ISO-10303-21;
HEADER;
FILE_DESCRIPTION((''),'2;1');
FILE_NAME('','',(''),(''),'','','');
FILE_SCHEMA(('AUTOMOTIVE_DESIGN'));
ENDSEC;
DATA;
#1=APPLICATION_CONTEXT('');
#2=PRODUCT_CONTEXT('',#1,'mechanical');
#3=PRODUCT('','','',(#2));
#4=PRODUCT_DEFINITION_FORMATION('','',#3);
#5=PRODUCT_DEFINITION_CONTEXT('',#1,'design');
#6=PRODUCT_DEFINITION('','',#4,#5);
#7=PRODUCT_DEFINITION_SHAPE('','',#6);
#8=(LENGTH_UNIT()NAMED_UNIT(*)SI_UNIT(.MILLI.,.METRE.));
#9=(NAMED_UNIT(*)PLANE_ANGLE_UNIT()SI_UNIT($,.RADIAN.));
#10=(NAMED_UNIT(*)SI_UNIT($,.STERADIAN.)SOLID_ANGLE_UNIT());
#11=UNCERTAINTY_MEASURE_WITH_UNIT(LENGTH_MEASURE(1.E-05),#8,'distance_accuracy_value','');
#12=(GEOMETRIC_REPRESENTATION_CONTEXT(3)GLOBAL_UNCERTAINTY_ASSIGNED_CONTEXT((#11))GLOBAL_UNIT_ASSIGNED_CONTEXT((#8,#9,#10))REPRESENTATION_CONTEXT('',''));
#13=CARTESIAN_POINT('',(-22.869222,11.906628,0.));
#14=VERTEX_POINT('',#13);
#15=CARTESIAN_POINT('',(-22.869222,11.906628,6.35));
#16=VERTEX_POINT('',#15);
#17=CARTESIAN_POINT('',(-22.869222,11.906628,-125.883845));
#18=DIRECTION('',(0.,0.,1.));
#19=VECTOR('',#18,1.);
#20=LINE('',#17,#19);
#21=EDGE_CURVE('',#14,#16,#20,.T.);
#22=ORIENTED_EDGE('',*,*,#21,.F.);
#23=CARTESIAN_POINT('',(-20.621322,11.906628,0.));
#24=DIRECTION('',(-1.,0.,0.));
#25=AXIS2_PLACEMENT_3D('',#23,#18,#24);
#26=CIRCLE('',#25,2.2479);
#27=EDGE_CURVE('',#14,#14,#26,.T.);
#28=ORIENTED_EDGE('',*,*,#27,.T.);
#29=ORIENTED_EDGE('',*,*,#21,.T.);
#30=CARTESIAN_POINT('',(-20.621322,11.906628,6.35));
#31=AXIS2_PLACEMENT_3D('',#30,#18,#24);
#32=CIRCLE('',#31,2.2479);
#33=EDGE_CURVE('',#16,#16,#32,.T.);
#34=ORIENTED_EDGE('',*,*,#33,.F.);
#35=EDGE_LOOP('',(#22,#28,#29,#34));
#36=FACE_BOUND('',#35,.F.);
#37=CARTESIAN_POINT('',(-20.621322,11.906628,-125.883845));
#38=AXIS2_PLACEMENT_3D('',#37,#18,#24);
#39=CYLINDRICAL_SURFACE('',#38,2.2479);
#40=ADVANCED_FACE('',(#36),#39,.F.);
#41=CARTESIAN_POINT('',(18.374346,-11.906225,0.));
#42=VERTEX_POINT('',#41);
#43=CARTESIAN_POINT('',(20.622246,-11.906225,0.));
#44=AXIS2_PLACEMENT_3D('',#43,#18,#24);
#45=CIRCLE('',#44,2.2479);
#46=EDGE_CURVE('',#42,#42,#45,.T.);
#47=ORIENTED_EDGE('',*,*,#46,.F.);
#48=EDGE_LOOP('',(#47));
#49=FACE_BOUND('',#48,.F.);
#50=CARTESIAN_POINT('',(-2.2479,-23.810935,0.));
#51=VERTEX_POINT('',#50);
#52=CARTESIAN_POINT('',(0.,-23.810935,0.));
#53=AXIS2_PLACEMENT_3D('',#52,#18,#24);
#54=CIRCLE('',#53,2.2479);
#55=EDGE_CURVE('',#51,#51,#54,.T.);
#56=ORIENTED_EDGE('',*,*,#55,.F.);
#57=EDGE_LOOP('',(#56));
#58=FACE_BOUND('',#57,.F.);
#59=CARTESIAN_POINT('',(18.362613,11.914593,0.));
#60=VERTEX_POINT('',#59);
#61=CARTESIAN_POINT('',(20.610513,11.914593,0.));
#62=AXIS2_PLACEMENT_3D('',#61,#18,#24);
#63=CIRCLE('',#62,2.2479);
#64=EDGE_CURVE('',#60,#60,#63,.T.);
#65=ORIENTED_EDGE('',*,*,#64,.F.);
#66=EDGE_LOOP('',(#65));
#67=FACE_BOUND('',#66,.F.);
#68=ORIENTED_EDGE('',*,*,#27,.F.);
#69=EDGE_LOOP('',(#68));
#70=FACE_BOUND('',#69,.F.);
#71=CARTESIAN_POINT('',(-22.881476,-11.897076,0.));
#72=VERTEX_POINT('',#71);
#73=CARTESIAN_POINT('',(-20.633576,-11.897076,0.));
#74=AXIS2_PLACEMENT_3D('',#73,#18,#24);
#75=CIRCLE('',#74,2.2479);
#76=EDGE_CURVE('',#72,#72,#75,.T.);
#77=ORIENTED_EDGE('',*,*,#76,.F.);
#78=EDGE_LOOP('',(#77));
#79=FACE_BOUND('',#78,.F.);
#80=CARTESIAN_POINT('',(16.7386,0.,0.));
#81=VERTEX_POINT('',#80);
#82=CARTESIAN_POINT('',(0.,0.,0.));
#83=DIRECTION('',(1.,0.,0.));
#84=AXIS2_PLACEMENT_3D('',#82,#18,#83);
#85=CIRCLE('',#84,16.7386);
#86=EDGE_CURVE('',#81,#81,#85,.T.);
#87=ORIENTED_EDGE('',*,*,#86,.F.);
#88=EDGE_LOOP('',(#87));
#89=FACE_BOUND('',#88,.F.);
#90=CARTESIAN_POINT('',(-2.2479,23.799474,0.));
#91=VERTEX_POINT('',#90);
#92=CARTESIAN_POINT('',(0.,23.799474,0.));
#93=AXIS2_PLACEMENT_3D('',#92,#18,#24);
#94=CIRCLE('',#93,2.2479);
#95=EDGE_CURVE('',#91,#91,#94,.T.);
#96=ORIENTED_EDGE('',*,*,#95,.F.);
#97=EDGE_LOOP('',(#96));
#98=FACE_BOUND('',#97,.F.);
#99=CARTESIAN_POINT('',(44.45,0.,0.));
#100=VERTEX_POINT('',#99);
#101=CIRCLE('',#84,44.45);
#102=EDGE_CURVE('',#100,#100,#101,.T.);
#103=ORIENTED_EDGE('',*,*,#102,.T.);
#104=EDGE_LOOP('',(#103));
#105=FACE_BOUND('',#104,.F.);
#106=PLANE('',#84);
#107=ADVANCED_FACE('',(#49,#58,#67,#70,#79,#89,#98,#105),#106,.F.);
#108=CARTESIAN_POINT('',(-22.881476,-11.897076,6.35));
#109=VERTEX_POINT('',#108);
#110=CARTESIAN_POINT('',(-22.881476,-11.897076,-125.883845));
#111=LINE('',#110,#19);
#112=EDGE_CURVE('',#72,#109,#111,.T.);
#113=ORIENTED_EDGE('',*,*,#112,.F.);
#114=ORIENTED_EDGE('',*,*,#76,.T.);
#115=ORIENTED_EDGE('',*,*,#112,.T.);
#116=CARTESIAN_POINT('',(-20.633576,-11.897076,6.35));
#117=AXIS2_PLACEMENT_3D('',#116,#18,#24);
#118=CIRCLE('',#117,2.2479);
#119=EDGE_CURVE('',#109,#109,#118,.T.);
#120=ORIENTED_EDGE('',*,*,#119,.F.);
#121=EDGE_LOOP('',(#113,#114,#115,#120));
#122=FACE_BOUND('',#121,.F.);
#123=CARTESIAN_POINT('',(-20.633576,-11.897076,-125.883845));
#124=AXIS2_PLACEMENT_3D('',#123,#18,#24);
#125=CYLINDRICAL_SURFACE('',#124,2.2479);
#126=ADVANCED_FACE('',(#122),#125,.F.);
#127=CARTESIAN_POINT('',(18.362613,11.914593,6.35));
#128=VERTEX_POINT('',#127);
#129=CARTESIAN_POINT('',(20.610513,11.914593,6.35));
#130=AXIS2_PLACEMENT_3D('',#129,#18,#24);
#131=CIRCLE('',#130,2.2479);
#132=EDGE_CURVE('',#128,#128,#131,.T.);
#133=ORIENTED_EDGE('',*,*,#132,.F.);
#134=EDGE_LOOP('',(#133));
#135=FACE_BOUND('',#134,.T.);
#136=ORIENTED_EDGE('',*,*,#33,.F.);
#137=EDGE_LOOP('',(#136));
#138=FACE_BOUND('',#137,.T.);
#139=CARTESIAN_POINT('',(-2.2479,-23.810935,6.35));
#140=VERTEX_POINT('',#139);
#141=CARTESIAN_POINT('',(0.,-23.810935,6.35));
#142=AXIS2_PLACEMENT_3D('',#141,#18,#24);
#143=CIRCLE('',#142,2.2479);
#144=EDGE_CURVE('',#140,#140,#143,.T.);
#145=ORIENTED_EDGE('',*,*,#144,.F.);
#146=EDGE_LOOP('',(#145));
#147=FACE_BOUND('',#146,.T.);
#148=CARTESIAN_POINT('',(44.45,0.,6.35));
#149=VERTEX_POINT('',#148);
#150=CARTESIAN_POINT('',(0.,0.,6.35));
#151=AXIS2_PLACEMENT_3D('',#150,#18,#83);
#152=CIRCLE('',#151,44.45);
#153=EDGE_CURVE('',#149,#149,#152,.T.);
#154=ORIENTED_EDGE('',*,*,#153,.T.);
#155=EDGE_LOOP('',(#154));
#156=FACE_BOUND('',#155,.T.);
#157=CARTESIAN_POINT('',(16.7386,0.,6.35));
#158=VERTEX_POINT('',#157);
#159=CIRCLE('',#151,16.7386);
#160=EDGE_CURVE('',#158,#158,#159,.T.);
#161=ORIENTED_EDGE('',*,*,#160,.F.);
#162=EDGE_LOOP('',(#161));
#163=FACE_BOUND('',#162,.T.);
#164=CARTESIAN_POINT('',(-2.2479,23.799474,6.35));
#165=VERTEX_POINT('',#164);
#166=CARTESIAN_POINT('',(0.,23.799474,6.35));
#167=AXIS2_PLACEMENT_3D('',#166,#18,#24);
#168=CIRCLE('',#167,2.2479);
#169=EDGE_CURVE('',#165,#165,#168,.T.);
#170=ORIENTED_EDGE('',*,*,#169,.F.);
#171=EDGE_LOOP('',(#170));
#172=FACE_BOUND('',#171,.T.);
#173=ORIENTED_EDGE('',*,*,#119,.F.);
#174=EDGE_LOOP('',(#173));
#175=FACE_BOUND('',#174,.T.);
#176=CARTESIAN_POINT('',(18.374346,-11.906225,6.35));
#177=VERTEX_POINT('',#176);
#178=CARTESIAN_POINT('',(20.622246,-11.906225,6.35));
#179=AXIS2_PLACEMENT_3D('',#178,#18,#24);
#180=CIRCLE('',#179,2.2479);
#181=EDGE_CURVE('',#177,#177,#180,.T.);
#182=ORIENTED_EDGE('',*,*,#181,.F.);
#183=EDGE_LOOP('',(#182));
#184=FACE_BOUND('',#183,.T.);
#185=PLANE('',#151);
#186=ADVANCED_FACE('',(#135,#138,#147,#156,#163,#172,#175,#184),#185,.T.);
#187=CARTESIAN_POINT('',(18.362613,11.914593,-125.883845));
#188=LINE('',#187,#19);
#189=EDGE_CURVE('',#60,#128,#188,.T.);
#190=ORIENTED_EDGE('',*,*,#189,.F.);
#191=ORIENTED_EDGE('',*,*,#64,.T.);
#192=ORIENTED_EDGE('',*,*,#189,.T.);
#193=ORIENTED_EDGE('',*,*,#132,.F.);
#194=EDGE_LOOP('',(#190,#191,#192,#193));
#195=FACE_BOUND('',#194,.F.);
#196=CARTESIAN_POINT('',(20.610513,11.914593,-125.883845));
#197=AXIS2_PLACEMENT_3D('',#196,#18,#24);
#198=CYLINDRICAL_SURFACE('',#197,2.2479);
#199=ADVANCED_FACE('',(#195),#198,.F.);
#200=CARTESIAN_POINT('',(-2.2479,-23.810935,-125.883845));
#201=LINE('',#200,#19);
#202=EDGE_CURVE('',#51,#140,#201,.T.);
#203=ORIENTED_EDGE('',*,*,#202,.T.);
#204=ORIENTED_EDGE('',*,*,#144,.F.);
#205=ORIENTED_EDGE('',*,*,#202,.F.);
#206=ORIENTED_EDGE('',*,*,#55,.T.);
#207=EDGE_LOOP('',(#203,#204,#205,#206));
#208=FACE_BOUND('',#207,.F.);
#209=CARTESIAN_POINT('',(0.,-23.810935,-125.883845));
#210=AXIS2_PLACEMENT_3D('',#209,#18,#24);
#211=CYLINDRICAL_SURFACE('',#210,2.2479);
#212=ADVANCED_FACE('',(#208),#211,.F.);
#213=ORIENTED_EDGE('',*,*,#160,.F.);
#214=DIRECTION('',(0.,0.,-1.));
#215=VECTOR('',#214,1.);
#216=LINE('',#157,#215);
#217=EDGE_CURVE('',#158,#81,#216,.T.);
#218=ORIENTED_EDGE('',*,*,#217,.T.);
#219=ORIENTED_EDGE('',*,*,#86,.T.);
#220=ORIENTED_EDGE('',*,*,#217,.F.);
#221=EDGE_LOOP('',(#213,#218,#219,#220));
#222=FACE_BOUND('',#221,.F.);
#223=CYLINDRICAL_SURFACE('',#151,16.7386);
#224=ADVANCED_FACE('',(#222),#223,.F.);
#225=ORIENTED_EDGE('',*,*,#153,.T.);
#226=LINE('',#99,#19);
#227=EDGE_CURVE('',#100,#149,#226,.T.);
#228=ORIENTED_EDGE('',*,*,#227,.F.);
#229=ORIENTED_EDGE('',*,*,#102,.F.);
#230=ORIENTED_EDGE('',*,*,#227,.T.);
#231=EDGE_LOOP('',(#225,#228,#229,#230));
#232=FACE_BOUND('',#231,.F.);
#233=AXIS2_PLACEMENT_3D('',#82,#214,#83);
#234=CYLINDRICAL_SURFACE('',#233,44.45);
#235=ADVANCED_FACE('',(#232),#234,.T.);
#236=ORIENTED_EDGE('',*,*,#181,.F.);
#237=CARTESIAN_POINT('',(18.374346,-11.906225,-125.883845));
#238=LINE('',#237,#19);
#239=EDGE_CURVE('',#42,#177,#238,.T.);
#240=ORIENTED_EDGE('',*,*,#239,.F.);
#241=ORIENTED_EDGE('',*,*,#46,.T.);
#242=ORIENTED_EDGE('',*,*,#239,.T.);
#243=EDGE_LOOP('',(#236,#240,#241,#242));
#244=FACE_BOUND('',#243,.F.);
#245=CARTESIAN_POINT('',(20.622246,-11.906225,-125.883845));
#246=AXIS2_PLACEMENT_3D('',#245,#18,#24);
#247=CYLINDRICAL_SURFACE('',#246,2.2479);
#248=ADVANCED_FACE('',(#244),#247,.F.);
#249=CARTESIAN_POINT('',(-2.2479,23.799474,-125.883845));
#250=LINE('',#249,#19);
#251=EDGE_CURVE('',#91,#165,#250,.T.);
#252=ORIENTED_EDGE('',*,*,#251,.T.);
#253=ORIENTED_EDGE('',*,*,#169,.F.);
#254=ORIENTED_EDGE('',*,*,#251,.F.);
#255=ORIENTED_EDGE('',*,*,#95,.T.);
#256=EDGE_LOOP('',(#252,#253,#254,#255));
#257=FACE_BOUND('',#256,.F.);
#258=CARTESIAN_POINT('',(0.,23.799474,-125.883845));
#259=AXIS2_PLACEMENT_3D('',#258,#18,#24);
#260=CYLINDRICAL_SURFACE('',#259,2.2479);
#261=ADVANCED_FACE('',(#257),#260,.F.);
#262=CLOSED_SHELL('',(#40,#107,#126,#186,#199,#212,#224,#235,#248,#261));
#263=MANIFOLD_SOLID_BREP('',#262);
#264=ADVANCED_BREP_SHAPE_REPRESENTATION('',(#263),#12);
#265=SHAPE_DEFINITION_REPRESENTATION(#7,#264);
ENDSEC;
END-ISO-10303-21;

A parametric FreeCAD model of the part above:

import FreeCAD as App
import Part
import Sketcher
Q = App.Units.Quantity

doc = App.newDocument("Part")
body = doc.addObject("PartDesign::Body", "Body")

# Sketch on XY plane
sketch1 = doc.addObject("Sketcher::SketchObject", "Sketch")
body.addObject(sketch1)
sketch1.AttachmentSupport = (doc.XY_Plane, [""])
sketch1.MapMode = "FlatFace"
sketch1.addGeometry(Part.Circle(App.Vector(0, 0, 0), App.Vector(0, 0, 1), 44), False)
sketch1.addConstraint(Sketcher.Constraint("Coincident", 0, 3, -1, 1))
sketch1.addConstraint(Sketcher.Constraint("Diameter", 0, Q("3.5 in")))
pad1 = doc.addObject("PartDesign::Pad", "Pad")
body.addObject(pad1)
pad1.Profile = sketch1
pad1.Length = Q("0.25 in")

# Sketch on XY plane
sketch2 = doc.addObject("Sketcher::SketchObject", "Sketch001")
body.addObject(sketch2)
sketch2.AttachmentSupport = (doc.XY_Plane, [""])
sketch2.MapMode = "FlatFace"
sketch2.AttachmentOffset = App.Placement(App.Vector(0, 0, 0.25 * 25.4), App.Rotation())
sketch2.addGeometry(Part.Circle(App.Vector(0, 0, 0), App.Vector(0, 0, 1), 17), False)
sketch2.addConstraint(Sketcher.Constraint("Coincident", 0, 3, -1, 1))
sketch2.addConstraint(Sketcher.Constraint("Diameter", 0, Q("1.318 in")))
pocket1 = doc.addObject("PartDesign::Pocket", "Pocket")
body.addObject(pocket1)
pocket1.Profile = sketch2
pocket1.Length = Q("0.25 in")

# Sketch on XY plane
sketch3 = doc.addObject("Sketcher::SketchObject", "Sketch002")
body.addObject(sketch3)
sketch3.AttachmentSupport = (doc.XY_Plane, [""])
sketch3.MapMode = "FlatFace"
sketch3.addGeometry(Part.Circle(App.Vector(0, 23.8, 0), App.Vector(0, 0, 1), 2.2), False)
sketch3.addConstraint(Sketcher.Constraint("PointOnObject", 0, 3, -2))
sketch3.addConstraint(Sketcher.Constraint("Diameter", 0, Q("0.177 in")))
sketch3.addConstraint(Sketcher.Constraint("DistanceY", -1, 1, 0, 3, 23.799474))
doc.recompute()
hole = doc.addObject("PartDesign::Hole", "Hole")
body.addObject(hole)
hole.Profile = sketch3
hole.ThreadType = "None"
hole.Diameter = Q("0.177 in")
hole.DepthType = "ThroughAll"
hole.Reversed = True

# Sketch on XY plane
sketch4 = doc.addObject("Sketcher::SketchObject", "Sketch003")
body.addObject(sketch4)
sketch4.AttachmentSupport = (doc.XY_Plane, [""])
sketch4.MapMode = "FlatFace"
sketch4.addGeometry(Part.Circle(App.Vector(-20.6, 11.9, 0), App.Vector(0, 0, 1), 2.2), False)
sketch4.addConstraint(Sketcher.Constraint("Diameter", 0, Q("0.177 in")))
sketch4.addConstraint(Sketcher.Constraint("DistanceX", 0, 3, -1, 1, 20.621322))
sketch4.addConstraint(Sketcher.Constraint("DistanceY", -1, 1, 0, 3, 11.906628))
doc.recompute()
hole2 = doc.addObject("PartDesign::Hole", "Hole001")
body.addObject(hole2)
hole2.Profile = sketch4
hole2.ThreadType = "None"
hole2.Diameter = Q("0.177 in")
hole2.DepthType = "ThroughAll"
hole2.Reversed = True

# Sketch on XY plane
sketch5 = doc.addObject("Sketcher::SketchObject", "Sketch004")
body.addObject(sketch5)
sketch5.AttachmentSupport = (doc.XY_Plane, [""])
sketch5.MapMode = "FlatFace"
sketch5.addGeometry(Part.Circle(App.Vector(20.6, 11.9, 0), App.Vector(0, 0, 1), 2.2), False)
sketch5.addConstraint(Sketcher.Constraint("Diameter", 0, Q("0.177 in")))
sketch5.addConstraint(Sketcher.Constraint("DistanceX", -1, 1, 0, 3, 20.610513))
sketch5.addConstraint(Sketcher.Constraint("DistanceY", -1, 1, 0, 3, 11.914593))
doc.recompute()
hole3 = doc.addObject("PartDesign::Hole", "Hole002")
body.addObject(hole3)
hole3.Profile = sketch5
hole3.ThreadType = "None"
hole3.Diameter = Q("0.177 in")
hole3.DepthType = "ThroughAll"
hole3.Reversed = True

# Sketch on XY plane
sketch6 = doc.addObject("Sketcher::SketchObject", "Sketch005")
body.addObject(sketch6)
sketch6.AttachmentSupport = (doc.XY_Plane, [""])
sketch6.MapMode = "FlatFace"
sketch6.addGeometry(Part.Circle(App.Vector(-20.6, -11.9, 0), App.Vector(0, 0, 1), 2.2), False)
sketch6.addConstraint(Sketcher.Constraint("Diameter", 0, Q("0.177 in")))
sketch6.addConstraint(Sketcher.Constraint("DistanceX", 0, 3, -1, 1, 20.633576))
sketch6.addConstraint(Sketcher.Constraint("DistanceY", 0, 3, -1, 1, 11.897076))
doc.recompute()
hole4 = doc.addObject("PartDesign::Hole", "Hole003")
body.addObject(hole4)
hole4.Profile = sketch6
hole4.ThreadType = "None"
hole4.Diameter = Q("0.177 in")
hole4.DepthType = "ThroughAll"
hole4.Reversed = True

# Sketch on XY plane
sketch7 = doc.addObject("Sketcher::SketchObject", "Sketch006")
body.addObject(sketch7)
sketch7.AttachmentSupport = (doc.XY_Plane, [""])
sketch7.MapMode = "FlatFace"
sketch7.addGeometry(Part.Circle(App.Vector(20.6, -11.9, 0), App.Vector(0, 0, 1), 2.2), False)
sketch7.addConstraint(Sketcher.Constraint("Diameter", 0, Q("0.177 in")))
sketch7.addConstraint(Sketcher.Constraint("DistanceX", -1, 1, 0, 3, 20.622246))
sketch7.addConstraint(Sketcher.Constraint("DistanceY", 0, 3, -1, 1, 11.906225))
doc.recompute()
hole5 = doc.addObject("PartDesign::Hole", "Hole004")
body.addObject(hole5)
hole5.Profile = sketch7
hole5.ThreadType = "None"
hole5.Diameter = Q("0.177 in")
hole5.DepthType = "ThroughAll"
hole5.Reversed = True

# Sketch on XY plane
sketch8 = doc.addObject("Sketcher::SketchObject", "Sketch007")
body.addObject(sketch8)
sketch8.AttachmentSupport = (doc.XY_Plane, [""])
sketch8.MapMode = "FlatFace"
sketch8.addGeometry(Part.Circle(App.Vector(0, -23.8, 0), App.Vector(0, 0, 1), 2.2), False)
sketch8.addConstraint(Sketcher.Constraint("PointOnObject", 0, 3, -2))
sketch8.addConstraint(Sketcher.Constraint("Diameter", 0, Q("0.177 in")))
sketch8.addConstraint(Sketcher.Constraint("DistanceY", 0, 3, -1, 1, 23.810935))
doc.recompute()
hole6 = doc.addObject("PartDesign::Hole", "Hole005")
body.addObject(hole6)
hole6.Profile = sketch8
hole6.ThreadType = "None"
hole6.Diameter = Q("0.177 in")
hole6.DepthType = "ThroughAll"
hole6.Reversed = True

doc.recompute()
